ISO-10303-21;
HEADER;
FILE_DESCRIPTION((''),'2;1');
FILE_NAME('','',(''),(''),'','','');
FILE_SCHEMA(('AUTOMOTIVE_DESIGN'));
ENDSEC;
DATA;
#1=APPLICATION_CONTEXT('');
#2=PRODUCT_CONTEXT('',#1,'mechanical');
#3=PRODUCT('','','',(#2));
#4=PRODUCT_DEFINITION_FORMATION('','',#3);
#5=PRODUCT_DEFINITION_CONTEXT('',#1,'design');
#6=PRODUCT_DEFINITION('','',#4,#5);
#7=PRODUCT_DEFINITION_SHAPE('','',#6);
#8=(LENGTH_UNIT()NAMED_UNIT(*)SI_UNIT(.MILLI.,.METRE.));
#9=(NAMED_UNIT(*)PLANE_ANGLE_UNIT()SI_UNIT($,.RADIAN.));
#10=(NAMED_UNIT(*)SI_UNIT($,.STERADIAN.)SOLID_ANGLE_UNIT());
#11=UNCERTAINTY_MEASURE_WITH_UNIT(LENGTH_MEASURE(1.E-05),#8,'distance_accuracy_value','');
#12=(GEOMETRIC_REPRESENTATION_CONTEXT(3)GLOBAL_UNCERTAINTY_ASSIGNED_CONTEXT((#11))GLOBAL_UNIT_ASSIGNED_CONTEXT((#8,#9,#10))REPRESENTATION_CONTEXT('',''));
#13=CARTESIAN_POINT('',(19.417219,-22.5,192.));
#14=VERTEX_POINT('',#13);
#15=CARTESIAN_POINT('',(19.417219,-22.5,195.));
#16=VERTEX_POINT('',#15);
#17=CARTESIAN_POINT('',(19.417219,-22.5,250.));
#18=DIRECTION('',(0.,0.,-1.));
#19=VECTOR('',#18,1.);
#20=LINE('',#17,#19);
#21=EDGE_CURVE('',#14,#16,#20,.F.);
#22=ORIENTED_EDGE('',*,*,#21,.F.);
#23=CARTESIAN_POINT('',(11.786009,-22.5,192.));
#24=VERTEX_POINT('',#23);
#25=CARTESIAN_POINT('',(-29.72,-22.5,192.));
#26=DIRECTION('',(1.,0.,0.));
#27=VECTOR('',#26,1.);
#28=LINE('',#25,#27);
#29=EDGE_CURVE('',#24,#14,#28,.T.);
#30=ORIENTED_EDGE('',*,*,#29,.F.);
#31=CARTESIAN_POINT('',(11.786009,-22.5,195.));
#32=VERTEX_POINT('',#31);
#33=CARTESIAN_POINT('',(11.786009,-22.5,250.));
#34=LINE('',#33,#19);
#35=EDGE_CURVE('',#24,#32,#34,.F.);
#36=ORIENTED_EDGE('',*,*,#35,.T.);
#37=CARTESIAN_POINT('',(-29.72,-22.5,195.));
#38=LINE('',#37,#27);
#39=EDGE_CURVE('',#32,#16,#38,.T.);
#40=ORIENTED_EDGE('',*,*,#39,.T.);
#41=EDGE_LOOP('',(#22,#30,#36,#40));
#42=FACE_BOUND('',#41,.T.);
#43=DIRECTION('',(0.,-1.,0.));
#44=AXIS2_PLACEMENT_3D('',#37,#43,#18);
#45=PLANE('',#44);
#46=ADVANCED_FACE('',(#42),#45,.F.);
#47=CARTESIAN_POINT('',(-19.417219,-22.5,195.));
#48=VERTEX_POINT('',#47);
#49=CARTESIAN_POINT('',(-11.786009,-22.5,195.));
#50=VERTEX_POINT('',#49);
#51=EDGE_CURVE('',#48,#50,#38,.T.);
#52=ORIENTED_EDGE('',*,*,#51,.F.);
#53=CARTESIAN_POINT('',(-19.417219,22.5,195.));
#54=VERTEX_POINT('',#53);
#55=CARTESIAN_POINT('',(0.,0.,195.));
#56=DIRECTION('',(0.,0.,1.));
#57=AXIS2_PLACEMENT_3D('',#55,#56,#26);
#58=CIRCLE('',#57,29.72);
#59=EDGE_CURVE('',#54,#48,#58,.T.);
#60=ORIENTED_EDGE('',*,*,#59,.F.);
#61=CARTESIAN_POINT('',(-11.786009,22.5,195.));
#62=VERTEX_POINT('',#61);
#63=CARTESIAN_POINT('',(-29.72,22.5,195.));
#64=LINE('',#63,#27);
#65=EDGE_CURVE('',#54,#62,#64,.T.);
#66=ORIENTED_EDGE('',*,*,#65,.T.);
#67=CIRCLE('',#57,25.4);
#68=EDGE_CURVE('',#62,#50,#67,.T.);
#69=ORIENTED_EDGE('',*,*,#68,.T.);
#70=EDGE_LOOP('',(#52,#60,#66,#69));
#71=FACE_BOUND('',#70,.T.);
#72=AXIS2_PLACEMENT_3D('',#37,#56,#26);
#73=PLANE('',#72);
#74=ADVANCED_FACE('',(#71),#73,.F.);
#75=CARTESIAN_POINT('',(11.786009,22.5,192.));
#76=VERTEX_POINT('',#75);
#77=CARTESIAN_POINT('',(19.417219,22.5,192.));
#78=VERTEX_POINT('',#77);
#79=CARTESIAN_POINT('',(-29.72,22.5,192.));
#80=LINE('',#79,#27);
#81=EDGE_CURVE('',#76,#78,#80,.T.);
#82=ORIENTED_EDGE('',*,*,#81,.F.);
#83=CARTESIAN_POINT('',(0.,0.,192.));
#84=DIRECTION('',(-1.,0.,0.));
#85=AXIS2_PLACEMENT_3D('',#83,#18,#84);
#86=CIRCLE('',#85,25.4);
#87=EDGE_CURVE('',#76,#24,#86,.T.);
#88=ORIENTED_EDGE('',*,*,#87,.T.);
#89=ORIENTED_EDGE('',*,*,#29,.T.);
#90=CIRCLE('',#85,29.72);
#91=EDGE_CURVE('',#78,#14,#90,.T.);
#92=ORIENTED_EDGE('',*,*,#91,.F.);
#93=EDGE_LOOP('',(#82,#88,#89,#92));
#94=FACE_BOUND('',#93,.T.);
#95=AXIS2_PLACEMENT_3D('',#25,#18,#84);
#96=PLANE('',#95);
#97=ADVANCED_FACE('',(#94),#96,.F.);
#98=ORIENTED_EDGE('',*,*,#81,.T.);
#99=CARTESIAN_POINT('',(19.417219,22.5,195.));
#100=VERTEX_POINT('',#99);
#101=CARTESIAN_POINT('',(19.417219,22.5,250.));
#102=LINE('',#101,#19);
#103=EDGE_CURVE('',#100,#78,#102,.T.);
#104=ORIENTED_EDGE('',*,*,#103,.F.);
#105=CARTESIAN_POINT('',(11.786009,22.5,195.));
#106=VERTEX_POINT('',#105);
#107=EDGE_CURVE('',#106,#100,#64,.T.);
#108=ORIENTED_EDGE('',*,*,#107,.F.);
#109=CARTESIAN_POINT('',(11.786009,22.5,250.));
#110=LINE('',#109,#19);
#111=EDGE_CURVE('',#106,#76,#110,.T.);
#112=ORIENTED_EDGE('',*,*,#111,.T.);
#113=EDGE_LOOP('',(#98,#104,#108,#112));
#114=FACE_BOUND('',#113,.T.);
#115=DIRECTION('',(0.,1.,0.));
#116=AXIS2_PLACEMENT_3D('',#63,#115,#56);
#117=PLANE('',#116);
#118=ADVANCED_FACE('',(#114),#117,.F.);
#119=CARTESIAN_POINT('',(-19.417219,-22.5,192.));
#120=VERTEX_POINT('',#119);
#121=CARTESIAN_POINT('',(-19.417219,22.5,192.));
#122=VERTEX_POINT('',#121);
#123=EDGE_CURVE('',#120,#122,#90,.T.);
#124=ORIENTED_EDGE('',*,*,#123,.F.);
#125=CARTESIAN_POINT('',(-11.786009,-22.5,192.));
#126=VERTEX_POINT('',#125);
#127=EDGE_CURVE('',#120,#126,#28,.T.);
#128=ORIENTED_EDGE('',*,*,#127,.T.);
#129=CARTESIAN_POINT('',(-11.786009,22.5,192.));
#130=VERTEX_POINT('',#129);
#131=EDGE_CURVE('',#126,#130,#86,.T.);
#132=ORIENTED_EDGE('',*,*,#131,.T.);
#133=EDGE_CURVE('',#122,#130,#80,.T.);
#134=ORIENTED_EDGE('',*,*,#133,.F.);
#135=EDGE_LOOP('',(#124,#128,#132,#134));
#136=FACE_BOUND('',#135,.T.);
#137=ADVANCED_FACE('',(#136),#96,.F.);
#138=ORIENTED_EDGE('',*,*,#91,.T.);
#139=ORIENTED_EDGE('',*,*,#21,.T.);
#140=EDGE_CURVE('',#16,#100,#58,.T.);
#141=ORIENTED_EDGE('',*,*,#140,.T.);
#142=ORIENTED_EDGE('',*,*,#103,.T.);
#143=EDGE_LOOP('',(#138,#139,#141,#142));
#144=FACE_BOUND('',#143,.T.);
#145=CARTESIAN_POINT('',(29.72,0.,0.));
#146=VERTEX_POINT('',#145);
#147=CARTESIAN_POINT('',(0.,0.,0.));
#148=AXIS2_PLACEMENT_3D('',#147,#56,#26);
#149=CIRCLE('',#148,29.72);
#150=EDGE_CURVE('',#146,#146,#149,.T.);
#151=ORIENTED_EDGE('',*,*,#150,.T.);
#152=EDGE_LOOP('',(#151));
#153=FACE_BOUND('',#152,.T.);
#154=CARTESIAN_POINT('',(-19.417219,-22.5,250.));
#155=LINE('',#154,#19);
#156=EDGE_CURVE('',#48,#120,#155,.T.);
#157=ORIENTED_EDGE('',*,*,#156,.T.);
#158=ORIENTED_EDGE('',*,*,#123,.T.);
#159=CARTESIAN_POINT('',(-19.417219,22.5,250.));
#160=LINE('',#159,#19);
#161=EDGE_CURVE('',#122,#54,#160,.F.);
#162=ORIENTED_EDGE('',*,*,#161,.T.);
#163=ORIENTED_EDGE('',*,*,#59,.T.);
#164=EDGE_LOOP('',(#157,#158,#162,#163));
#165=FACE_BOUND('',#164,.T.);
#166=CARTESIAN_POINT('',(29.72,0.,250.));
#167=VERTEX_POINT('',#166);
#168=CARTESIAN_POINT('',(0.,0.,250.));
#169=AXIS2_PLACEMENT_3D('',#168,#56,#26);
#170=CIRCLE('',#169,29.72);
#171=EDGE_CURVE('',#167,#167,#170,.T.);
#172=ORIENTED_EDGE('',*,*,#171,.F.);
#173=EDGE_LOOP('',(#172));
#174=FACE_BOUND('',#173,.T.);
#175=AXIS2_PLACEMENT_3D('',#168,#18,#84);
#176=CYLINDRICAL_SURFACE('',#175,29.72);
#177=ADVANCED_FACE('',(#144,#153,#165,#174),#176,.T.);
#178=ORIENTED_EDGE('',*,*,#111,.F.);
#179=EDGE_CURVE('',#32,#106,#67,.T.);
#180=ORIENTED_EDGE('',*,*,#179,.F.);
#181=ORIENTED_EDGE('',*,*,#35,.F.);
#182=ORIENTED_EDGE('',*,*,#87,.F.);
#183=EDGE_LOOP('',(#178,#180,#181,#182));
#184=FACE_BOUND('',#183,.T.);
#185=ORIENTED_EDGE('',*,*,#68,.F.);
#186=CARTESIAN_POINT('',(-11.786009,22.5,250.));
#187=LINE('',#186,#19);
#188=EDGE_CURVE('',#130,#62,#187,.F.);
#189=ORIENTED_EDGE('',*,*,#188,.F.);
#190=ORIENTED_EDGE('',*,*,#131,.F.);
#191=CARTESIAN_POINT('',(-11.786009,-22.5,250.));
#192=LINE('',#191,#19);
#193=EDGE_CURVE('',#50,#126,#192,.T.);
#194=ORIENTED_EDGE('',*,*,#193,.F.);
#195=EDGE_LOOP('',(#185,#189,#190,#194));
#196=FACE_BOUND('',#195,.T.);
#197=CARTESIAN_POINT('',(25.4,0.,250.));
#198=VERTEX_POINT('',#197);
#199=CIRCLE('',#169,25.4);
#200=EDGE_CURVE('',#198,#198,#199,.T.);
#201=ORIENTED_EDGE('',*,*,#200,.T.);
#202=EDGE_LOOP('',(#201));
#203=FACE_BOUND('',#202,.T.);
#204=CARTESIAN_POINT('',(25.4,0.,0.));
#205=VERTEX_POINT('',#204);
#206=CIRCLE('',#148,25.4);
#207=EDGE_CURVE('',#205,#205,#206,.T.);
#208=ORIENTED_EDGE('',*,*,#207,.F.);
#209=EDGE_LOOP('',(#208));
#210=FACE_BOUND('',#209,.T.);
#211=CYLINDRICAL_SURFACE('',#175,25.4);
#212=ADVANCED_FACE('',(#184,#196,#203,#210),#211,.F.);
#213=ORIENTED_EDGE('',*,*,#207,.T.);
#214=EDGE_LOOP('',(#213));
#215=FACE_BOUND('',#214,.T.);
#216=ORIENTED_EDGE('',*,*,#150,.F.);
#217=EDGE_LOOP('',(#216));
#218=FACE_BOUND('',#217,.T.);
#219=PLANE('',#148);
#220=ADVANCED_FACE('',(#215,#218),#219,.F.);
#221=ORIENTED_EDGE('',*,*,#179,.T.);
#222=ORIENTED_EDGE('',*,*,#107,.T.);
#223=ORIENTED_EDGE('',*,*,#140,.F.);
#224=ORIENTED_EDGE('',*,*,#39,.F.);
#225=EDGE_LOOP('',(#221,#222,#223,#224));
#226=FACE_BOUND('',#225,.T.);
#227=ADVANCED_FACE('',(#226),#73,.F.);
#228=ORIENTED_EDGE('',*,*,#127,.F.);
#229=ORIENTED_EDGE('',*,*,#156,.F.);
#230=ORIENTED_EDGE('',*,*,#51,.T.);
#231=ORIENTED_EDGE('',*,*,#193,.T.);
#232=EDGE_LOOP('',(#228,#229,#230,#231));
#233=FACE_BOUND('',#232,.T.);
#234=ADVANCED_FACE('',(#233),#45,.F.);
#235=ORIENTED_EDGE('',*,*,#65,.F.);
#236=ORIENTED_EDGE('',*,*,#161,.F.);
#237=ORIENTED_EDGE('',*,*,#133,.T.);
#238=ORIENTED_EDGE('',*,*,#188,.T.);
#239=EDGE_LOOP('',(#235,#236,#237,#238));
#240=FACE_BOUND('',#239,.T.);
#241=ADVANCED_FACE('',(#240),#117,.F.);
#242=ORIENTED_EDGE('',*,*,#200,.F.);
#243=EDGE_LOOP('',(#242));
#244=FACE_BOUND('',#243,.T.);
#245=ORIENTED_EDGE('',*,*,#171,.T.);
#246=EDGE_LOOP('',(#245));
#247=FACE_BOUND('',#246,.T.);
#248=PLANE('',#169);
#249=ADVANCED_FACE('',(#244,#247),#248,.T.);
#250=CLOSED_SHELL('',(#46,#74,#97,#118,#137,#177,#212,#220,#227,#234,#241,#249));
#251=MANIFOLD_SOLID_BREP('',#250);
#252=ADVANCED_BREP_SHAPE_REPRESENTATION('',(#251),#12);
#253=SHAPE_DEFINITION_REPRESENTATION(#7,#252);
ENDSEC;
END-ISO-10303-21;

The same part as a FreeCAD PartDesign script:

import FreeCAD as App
import Part
import Sketcher
from FreeCAD import Vector


def add_polygon(sketch, points):
    """Adds a closed chain of lines whose ends are joined by coincident constraints."""
    first, n = sketch.GeometryCount, len(points)
    for a, b in zip(points, points[1:] + points[:1]):
        sketch.addGeometry(Part.LineSegment(App.Vector(*a, 0), App.Vector(*b, 0)), False)
    for i in range(n):
        sketch.addConstraint(Sketcher.Constraint("Coincident", first + i, 2, first + (i + 1) % n, 1))

doc = App.newDocument("Part")
body = doc.addObject("PartDesign::Body", "Body")

# Sketch on XY plane
sketch1 = doc.addObject("Sketcher::SketchObject", "Sketch")
body.addObject(sketch1)
sketch1.AttachmentSupport = (doc.XY_Plane, [""])
sketch1.MapMode = "FlatFace"
sketch1.addGeometry([
    Part.Circle(Vector(0, 0, 0), Vector(0, 0, 1), 30),
    Part.Circle(Vector(0, 0, 0), Vector(0, 0, 1), 25),
], False)
sketch1.addConstraint([
    Sketcher.Constraint("Coincident", 0, 3, -1, 1),
    Sketcher.Constraint("Coincident", 1, 3, -1, 1),
    Sketcher.Constraint("Diameter", 1, 50.8),
    Sketcher.Constraint("Diameter", 0, 59.44),
])
pad1 = doc.addObject("PartDesign::Pad", "Pad")
body.addObject(pad1)
pad1.Profile = sketch1
pad1.Length = 250

# Sketch on YZ plane
sketch2 = doc.addObject("Sketcher::SketchObject", "Sketch001")
body.addObject(sketch2)
sketch2.AttachmentSupport = (doc.YZ_Plane, [""])
sketch2.MapMode = "FlatFace"
add_polygon(sketch2, [(22.5, 195), (-22.5, 195), (-22.5, 192), (22.5, 192)])  # lines 0-3
sketch2.addConstraint([
    Sketcher.Constraint("Horizontal", 0),
    Sketcher.Constraint("Vertical", 1),
    Sketcher.Constraint("Horizontal", 2),
    Sketcher.Constraint("Vertical", 3),
    Sketcher.Constraint("DistanceX", 0, 2, 0, 1, 45.0),
    Sketcher.Constraint("DistanceY", 1, 2, 1, 1, 3.0),
    Sketcher.Constraint("DistanceY", -1, 1, 0, 2, 195.0),
    Sketcher.Constraint("DistanceX", 0, 2, -1, 1, 22.5),
])
pocket1 = doc.addObject("PartDesign::Pocket", "Pocket")
body.addObject(pocket1)
pocket1.Profile = sketch2
pocket1.Type = "ThroughAll"
pocket1.Midplane = True

doc.recompute()
